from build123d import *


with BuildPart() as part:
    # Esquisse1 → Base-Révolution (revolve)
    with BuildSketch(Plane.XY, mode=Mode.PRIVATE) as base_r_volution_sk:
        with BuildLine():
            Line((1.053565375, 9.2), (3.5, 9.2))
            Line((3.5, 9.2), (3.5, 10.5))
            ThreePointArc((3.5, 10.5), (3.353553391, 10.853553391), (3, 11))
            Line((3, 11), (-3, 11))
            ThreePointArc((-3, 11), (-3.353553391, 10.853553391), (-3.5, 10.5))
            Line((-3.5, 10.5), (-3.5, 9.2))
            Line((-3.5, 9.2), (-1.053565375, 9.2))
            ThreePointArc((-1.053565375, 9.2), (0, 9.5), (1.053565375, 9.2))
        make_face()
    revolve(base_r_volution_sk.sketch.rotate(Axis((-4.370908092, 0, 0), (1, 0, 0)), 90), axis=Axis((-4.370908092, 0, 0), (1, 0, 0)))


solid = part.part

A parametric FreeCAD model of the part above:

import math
import FreeCAD as App
import Part
import Sketcher

V = App.Vector

doc = App.newDocument("Part")
body = doc.addObject("PartDesign::Body", "Body")

# Sketch on XY plane
sketch1 = doc.addObject("Sketcher::SketchObject", "Sketch")
body.addObject(sketch1)
sketch1.AttachmentSupport = (doc.XY_Plane, [""])
sketch1.MapMode = "FlatFace"
sketch1.addGeometry([
    Part.LineSegment(V(1.05, 9.2, 0), V(3.5, 9.2, 0)),  # 0
    Part.LineSegment(V(3.5, 9.2, 0), V(3.5, 10.5, 0)),  # 1
    Part.ArcOfCircle(Part.Circle(V(3, 10.5, 0), V(0, 0, 1), 0.5), math.radians(0), math.radians(90)),  # 2
    Part.LineSegment(V(3, 11, 0), V(-3, 11, 0)),  # 3
    Part.ArcOfCircle(Part.Circle(V(-3, 10.5, 0), V(0, 0, 1), 0.5), math.radians(90), math.radians(180)),  # 4
    Part.LineSegment(V(-3.5, 10.5, 0), V(-3.5, 9.2, 0)),  # 5
    Part.LineSegment(V(-3.5, 9.2, 0), V(-1.05, 9.2, 0)),  # 6
    Part.ArcOfCircle(Part.Circle(V(0, 7.5, 0), V(0, 0, 1), 2), math.radians(58), math.radians(122)),  # 7
], False)
sketch1.addConstraint([
    Sketcher.Constraint("Coincident", 0, 2, 1, 1),
    Sketcher.Constraint("Tangent", 1, 2, 2, 1),
    Sketcher.Constraint("Tangent", 2, 2, 3, 1),
    Sketcher.Constraint("Tangent", 3, 2, 4, 1),
    Sketcher.Constraint("Tangent", 4, 2, 5, 1),
    Sketcher.Constraint("Coincident", 5, 2, 6, 1),
    Sketcher.Constraint("Coincident", 6, 2, 7, 2),
    Sketcher.Constraint("Coincident", 7, 1, 0, 1),
    Sketcher.Constraint("Horizontal", 0),
    Sketcher.Constraint("Vertical", 1),
    Sketcher.Constraint("Horizontal", 3),
    Sketcher.Constraint("Vertical", 5),
    Sketcher.Constraint("Horizontal", 6),
    Sketcher.Constraint("Equal", 2, 4),
    Sketcher.Constraint("Symmetric", 0, 2, 5, 2, -2),
    Sketcher.Constraint("PointOnObject", 7, 3, -2),
    Sketcher.Constraint("Radius", 7, 2.0),
    Sketcher.Constraint("Radius", 2, 0.5),
    Sketcher.Constraint("DistanceX", 3, 2, 3, 1, 6.0),
    Sketcher.Constraint("DistanceY", 1, 1, 1, 2, 1.3),
    Sketcher.Constraint("DistanceY", -1, 1, 2, 2, 11.0),
    Sketcher.Constraint("DistanceY", 7, 3, 2, 3, 3.0),
])
revolution = doc.addObject("PartDesign::Revolution", "Revolution")
body.addObject(revolution)
revolution.Profile = sketch1
revolution.ReferenceAxis = (sketch1, ["H_Axis"])
revolution.Angle = 360

doc.recompute()
